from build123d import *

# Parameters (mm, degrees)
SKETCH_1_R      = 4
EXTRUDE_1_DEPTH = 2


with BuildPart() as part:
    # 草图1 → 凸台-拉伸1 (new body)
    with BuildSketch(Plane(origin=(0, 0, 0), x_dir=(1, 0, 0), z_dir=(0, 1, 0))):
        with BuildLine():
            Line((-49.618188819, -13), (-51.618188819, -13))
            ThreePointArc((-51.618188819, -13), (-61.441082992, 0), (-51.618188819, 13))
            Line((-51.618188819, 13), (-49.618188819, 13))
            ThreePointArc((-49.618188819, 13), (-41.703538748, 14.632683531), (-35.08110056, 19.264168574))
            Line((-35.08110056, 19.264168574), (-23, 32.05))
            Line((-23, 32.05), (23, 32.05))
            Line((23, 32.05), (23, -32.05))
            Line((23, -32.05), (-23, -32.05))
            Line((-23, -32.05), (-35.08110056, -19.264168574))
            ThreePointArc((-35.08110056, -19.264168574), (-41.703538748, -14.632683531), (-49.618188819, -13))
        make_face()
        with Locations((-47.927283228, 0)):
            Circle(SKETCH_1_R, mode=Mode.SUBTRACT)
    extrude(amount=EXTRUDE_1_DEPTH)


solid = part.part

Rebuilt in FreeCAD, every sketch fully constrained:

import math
import FreeCAD as App
import Part
import Sketcher
from FreeCAD import Vector
Q = App.Units.Quantity

doc = App.newDocument("Part")
body = doc.addObject("PartDesign::Body", "Body")

sketch1 = doc.addObject("Sketcher::SketchObject", "Sketch")
body.addObject(sketch1)
sketch1.AttachmentSupport = (doc.XZ_Plane, [""])
sketch1.MapMode = "FlatFace"
sketch1.addGeometry([
    Part.LineSegment(Vector(-51.6, 13, 0), Vector(-49.6, 13, 0)),
    Part.ArcOfCircle(Part.Circle(Vector(-49.6, 33, 0), Vector(0, 0, 1), 20), math.radians(-90), math.radians(-43)),
    Part.LineSegment(Vector(-35.1, 19.3, 0), Vector(-23, 32, 0)),
    Part.LineSegment(Vector(-23, 32, 0), Vector(23, 32, 0)),
    Part.LineSegment(Vector(23, 32, 0), Vector(23, -32, 0)),
    Part.LineSegment(Vector(23, -32, 0), Vector(-23, -32, 0)),
    Part.LineSegment(Vector(-23, -32, 0), Vector(-35.1, -19.3, 0)),
    Part.ArcOfCircle(Part.Circle(Vector(-49.6, -33, 0), Vector(0, 0, 1), 20), math.radians(43), math.radians(90)),
    Part.LineSegment(Vector(-49.6, -13, 0), Vector(-51.6, -13, 0)),
    Part.ArcOfCircle(Part.Circle(Vector(-47.9, 0, 0), Vector(0, 0, 1), 13.5), math.radians(106), math.radians(254)),
    Part.Circle(Vector(-47.9, 0, 0), Vector(0, 0, 1), 4),
], False)
sketch1.addConstraint([
    Sketcher.Constraint("Tangent", 0, 2, 1, 1),
    Sketcher.Constraint("Tangent", 1, 2, 2, 1),
    Sketcher.Constraint("Coincident", 2, 2, 3, 1),
    Sketcher.Constraint("Coincident", 3, 2, 4, 1),
    Sketcher.Constraint("Coincident", 4, 2, 5, 1),
    Sketcher.Constraint("Coincident", 5, 2, 6, 1),
    Sketcher.Constraint("Tangent", 6, 2, 7, 1),
    Sketcher.Constraint("Tangent", 7, 2, 8, 1),
    Sketcher.Constraint("Coincident", 8, 2, 9, 2),
    Sketcher.Constraint("Coincident", 9, 1, 0, 1),
    Sketcher.Constraint("Horizontal", 0),
    Sketcher.Constraint("Horizontal", 3),
    Sketcher.Constraint("Vertical", 4),
    Sketcher.Constraint("Horizontal", 5),
    Sketcher.Constraint("Horizontal", 8),
    Sketcher.Constraint("Coincident", 10, 3, 9, 3),
    Sketcher.Constraint("Equal", 1, 7),
    Sketcher.Constraint("Symmetric", 2, 2, 4, 2, -1, 1),
    Sketcher.Constraint("Symmetric", 1, 3, 7, 3, -1),
    Sketcher.Constraint("PointOnObject", 9, 3, -1),
    Sketcher.Constraint("Vertical", 2, 2, 5, 2),
    Sketcher.Constraint("Diameter", 10, Q("8 mm")),
    Sketcher.Constraint("Radius", 1, Q("20 mm")),
    Sketcher.Constraint("DistanceX", 0, 1, 0, 2, Q("2 mm")),
    Sketcher.Constraint("DistanceX", 3, 1, 3, 2, Q("46 mm")),
    Sketcher.Constraint("DistanceY", 4, 2, 4, 1, Q("64.1 mm")),
    Sketcher.Constraint("DistanceY", -1, 1, 1, 3, Q("33 mm")),
    Sketcher.Constraint("Radius", 9, Q("13.5138 mm")),
    Sketcher.Constraint("DistanceX", 1, 2, -1, 1, Q("35.081101 mm")),
])
pad1 = doc.addObject("PartDesign::Pad", "Pad")
body.addObject(pad1)
pad1.Profile = sketch1
pad1.Length = 2
pad1.Reversed = True

doc.recompute()
